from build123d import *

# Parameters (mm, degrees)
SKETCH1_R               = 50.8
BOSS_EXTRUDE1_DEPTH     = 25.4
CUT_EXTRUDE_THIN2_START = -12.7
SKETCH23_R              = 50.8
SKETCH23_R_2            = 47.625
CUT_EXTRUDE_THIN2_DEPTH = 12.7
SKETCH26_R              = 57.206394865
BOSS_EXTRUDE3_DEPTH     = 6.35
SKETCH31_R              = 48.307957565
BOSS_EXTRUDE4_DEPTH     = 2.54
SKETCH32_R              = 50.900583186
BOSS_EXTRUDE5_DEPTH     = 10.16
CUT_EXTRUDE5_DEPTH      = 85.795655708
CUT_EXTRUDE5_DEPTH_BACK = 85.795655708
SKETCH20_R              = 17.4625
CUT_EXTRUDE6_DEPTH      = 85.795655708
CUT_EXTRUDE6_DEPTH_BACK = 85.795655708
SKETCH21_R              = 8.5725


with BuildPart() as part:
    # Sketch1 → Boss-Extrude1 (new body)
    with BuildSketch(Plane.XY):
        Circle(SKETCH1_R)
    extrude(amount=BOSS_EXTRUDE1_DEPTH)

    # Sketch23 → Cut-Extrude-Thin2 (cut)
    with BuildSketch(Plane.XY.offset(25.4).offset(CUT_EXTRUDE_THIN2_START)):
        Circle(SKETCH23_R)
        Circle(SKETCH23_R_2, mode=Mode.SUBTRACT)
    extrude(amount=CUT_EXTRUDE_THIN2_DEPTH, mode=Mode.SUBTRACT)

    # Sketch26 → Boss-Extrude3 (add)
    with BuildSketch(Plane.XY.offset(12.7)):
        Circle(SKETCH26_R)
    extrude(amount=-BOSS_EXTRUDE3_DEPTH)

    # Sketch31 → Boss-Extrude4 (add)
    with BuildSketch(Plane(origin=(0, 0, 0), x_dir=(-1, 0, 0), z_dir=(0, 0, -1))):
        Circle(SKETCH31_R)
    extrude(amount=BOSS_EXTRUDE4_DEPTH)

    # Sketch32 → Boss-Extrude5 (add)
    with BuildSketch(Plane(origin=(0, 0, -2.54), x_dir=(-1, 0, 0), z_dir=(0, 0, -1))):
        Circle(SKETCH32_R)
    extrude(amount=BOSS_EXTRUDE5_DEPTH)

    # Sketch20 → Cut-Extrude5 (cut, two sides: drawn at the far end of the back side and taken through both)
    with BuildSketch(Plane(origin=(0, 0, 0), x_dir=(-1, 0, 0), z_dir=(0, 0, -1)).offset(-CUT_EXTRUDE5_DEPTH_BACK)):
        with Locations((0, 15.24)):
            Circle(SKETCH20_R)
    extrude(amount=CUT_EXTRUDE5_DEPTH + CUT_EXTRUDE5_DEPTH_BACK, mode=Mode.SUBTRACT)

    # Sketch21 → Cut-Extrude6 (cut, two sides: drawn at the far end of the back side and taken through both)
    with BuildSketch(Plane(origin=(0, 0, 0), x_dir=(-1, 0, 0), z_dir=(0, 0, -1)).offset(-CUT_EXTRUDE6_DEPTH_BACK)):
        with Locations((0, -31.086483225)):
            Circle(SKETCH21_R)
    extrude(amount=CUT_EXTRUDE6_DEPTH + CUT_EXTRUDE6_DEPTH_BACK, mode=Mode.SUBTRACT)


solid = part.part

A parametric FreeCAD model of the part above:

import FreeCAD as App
import Part
import Sketcher
Q = App.Units.Quantity

doc = App.newDocument("Part")
body = doc.addObject("PartDesign::Body", "Body")

sketch1 = doc.addObject("Sketcher::SketchObject", "Sketch")
body.addObject(sketch1)
sketch1.AttachmentSupport = (doc.XY_Plane, [""])
sketch1.MapMode = "FlatFace"
sketch1.addGeometry(Part.Circle(App.Vector(0, 0, 0), App.Vector(0, 0, 1), 51), False)
sketch1.addConstraint(Sketcher.Constraint("Coincident", 0, 3, -1, 1))
sketch1.addConstraint(Sketcher.Constraint("Diameter", 0, Q("4 in")))
pad1 = doc.addObject("PartDesign::Pad", "Pad")
body.addObject(pad1)
pad1.Profile = sketch1
pad1.Length = Q("1 in")

sketch2 = doc.addObject("Sketcher::SketchObject", "Sketch001")
body.addObject(sketch2)
sketch2.AttachmentSupport = (doc.XY_Plane, [""])
sketch2.MapMode = "FlatFace"
sketch2.AttachmentOffset = App.Placement(App.Vector(0, 0, 0.5 * 25.4), App.Rotation())
sketch2.addGeometry(Part.Circle(App.Vector(0, 0, 0), App.Vector(0, 0, 1), 51), False)
sketch2.addGeometry(Part.Circle(App.Vector(0, 0, 0), App.Vector(0, 0, 1), 48), False)
sketch2.addConstraint(Sketcher.Constraint("Coincident", 0, 3, -1, 1))
sketch2.addConstraint(Sketcher.Constraint("Coincident", 1, 3, -1, 1))
sketch2.addConstraint(Sketcher.Constraint("Diameter", 0, Q("4 in")))
sketch2.addConstraint(Sketcher.Constraint("Diameter", 1, Q("3.75 in")))
pocket1 = doc.addObject("PartDesign::Pocket", "Pocket")
body.addObject(pocket1)
pocket1.Profile = sketch2
pocket1.Length = Q("0.5 in")
pocket1.Reversed = True

sketch3 = doc.addObject("Sketcher::SketchObject", "Sketch002")
body.addObject(sketch3)
sketch3.AttachmentSupport = (doc.XY_Plane, [""])
sketch3.MapMode = "FlatFace"
sketch3.AttachmentOffset = App.Placement(App.Vector(0, 0, 0.5 * 25.4), App.Rotation())
sketch3.addGeometry(Part.Circle(App.Vector(0, 0, 0), App.Vector(0, 0, 1), 57), False)
sketch3.addConstraint(Sketcher.Constraint("Coincident", 0, 3, -1, 1))
sketch3.addConstraint(Sketcher.Constraint("Diameter", 0, 114.41279))
pad2 = doc.addObject("PartDesign::Pad", "Pad001")
body.addObject(pad2)
pad2.Profile = sketch3
pad2.Length = Q("0.25 in")
pad2.Reversed = True

sketch4 = doc.addObject("Sketcher::SketchObject", "Sketch003")
body.addObject(sketch4)
sketch4.AttachmentSupport = (doc.XY_Plane, [""])
sketch4.MapMode = "FlatFace"
sketch4.addGeometry(Part.Circle(App.Vector(0, 0, 0), App.Vector(0, 0, 1), 48), False)
sketch4.addConstraint(Sketcher.Constraint("Coincident", 0, 3, -1, 1))
sketch4.addConstraint(Sketcher.Constraint("Diameter", 0, 96.615915))
pad3 = doc.addObject("PartDesign::Pad", "Pad002")
body.addObject(pad3)
pad3.Profile = sketch4
pad3.Length = Q("0.1 in")
pad3.Reversed = True

sketch5 = doc.addObject("Sketcher::SketchObject", "Sketch004")
body.addObject(sketch5)
sketch5.AttachmentSupport = (doc.XY_Plane, [""])
sketch5.MapMode = "FlatFace"
sketch5.AttachmentOffset = App.Placement(App.Vector(0, 0, -0.1 * 25.4), App.Rotation())
sketch5.addGeometry(Part.Circle(App.Vector(0, 0, 0), App.Vector(0, 0, 1), 51), False)
sketch5.addConstraint(Sketcher.Constraint("Coincident", 0, 3, -1, 1))
sketch5.addConstraint(Sketcher.Constraint("Diameter", 0, 101.801166))
pad4 = doc.addObject("PartDesign::Pad", "Pad003")
body.addObject(pad4)
pad4.Profile = sketch5
pad4.Length = Q("0.4 in")
pad4.Reversed = True

sketch6 = doc.addObject("Sketcher::SketchObject", "Sketch005")
body.addObject(sketch6)
sketch6.AttachmentSupport = (doc.XY_Plane, [""])
sketch6.MapMode = "FlatFace"
sketch6.addGeometry(Part.Circle(App.Vector(0, 15, 0), App.Vector(0, 0, 1), 17), False)
sketch6.addConstraint(Sketcher.Constraint("PointOnObject", 0, 3, -2))
sketch6.addConstraint(Sketcher.Constraint("Diameter", 0, Q("1.375 in")))
sketch6.addConstraint(Sketcher.Constraint("DistanceY", -1, 1, 0, 3, Q("0.6 in")))
pocket2 = doc.addObject("PartDesign::Pocket", "Pocket001")
body.addObject(pocket2)
pocket2.Profile = sketch6
pocket2.Type = "ThroughAll"
pocket2.Midplane = True

sketch7 = doc.addObject("Sketcher::SketchObject", "Sketch006")
body.addObject(sketch7)
sketch7.AttachmentSupport = (doc.XY_Plane, [""])
sketch7.MapMode = "FlatFace"
sketch7.addGeometry(Part.Circle(App.Vector(0, -31, 0), App.Vector(0, 0, 1), 9), False)
sketch7.addConstraint(Sketcher.Constraint("PointOnObject", 0, 3, -2))
sketch7.addConstraint(Sketcher.Constraint("Diameter", 0, Q("0.675 in")))
sketch7.addConstraint(Sketcher.Constraint("DistanceY", 0, 3, -1, 1, 31.086483))
pocket3 = doc.addObject("PartDesign::Pocket", "Pocket002")
body.addObject(pocket3)
pocket3.Profile = sketch7
pocket3.Type = "ThroughAll"
pocket3.Midplane = True

doc.recompute()
